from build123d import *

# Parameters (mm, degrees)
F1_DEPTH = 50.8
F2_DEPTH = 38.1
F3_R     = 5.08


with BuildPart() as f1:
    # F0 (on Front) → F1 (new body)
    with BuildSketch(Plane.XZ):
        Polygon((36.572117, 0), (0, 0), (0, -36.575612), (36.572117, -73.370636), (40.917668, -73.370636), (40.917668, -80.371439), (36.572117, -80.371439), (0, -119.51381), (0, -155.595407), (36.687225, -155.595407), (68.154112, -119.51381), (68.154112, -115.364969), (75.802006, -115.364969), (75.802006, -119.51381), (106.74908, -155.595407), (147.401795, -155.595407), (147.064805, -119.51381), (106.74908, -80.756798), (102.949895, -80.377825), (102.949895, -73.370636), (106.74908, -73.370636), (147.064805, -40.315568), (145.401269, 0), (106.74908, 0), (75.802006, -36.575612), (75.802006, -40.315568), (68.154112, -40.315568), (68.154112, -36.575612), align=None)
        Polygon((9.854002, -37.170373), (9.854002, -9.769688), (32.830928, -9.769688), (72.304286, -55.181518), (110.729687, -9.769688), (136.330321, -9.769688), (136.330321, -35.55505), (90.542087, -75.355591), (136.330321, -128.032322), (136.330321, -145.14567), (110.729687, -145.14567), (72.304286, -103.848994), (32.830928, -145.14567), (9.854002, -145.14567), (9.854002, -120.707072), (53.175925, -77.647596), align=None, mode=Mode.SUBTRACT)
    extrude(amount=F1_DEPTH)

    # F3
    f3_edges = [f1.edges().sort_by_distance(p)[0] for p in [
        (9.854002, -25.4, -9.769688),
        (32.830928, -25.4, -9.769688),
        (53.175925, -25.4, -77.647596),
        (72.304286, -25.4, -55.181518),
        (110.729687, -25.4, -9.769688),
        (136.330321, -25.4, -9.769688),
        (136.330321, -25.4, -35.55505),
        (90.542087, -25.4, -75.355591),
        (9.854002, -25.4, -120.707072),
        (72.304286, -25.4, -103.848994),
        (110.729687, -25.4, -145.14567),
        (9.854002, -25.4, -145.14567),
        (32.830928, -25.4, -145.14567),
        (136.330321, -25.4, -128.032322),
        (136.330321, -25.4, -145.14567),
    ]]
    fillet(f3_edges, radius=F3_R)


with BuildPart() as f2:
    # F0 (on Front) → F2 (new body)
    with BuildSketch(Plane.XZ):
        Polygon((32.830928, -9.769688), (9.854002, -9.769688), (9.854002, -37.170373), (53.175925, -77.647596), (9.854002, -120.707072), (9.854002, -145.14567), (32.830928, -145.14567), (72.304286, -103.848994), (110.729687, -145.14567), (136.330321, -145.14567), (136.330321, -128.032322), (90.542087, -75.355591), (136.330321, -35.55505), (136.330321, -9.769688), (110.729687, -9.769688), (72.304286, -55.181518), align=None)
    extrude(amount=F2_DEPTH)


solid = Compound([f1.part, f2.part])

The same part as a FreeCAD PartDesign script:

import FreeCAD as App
import Part
import Sketcher
Q = App.Units.Quantity


def edges_at(feature, points):
    """Names of the edges that pass closest to the given points."""
    edges = feature.Shape.Edges
    near = lambda p: min(range(len(edges)), key=lambda i: edges[i].distToShape(Part.Vertex(*p))[0])
    return sorted({f"Edge{near(p) + 1}" for p in points})

doc = App.newDocument("Part")
body = doc.addObject("PartDesign::Body", "Body")

# Sketch on XZ plane
sketch1 = body.newObject("Sketcher::SketchObject", "Sketch")
sketch1.AttachmentSupport = (doc.getObject("XZ_Plane"), [""])
sketch1.MapMode = "FlatFace"
sketch1.addGeometry(Part.LineSegment(App.Vector(36.6, 0, 0), App.Vector(0, 0, 0)), False)
sketch1.addGeometry(Part.LineSegment(App.Vector(0, 0, 0), App.Vector(0, -36.6, 0)), False)
sketch1.addGeometry(Part.LineSegment(App.Vector(0, -36.6, 0), App.Vector(36.6, -73.4, 0)), False)
sketch1.addGeometry(Part.LineSegment(App.Vector(36.6, -73.4, 0), App.Vector(40.9, -73.4, 0)), False)
sketch1.addGeometry(Part.LineSegment(App.Vector(40.9, -73.4, 0), App.Vector(40.9, -80.4, 0)), False)
sketch1.addGeometry(Part.LineSegment(App.Vector(40.9, -80.4, 0), App.Vector(36.6, -80.4, 0)), False)
sketch1.addGeometry(Part.LineSegment(App.Vector(36.6, -80.4, 0), App.Vector(0, -119.5, 0)), False)
sketch1.addGeometry(Part.LineSegment(App.Vector(0, -119.5, 0), App.Vector(0, -155.6, 0)), False)
sketch1.addGeometry(Part.LineSegment(App.Vector(0, -155.6, 0), App.Vector(36.7, -155.6, 0)), False)
sketch1.addGeometry(Part.LineSegment(App.Vector(36.7, -155.6, 0), App.Vector(68.2, -119.5, 0)), False)
sketch1.addGeometry(Part.LineSegment(App.Vector(68.2, -119.5, 0), App.Vector(68.2, -115.4, 0)), False)
sketch1.addGeometry(Part.LineSegment(App.Vector(68.2, -115.4, 0), App.Vector(75.8, -115.4, 0)), False)
sketch1.addGeometry(Part.LineSegment(App.Vector(75.8, -115.4, 0), App.Vector(75.8, -119.5, 0)), False)
sketch1.addGeometry(Part.LineSegment(App.Vector(75.8, -119.5, 0), App.Vector(106.7, -155.6, 0)), False)
sketch1.addGeometry(Part.LineSegment(App.Vector(106.7, -155.6, 0), App.Vector(147.4, -155.6, 0)), False)
sketch1.addGeometry(Part.LineSegment(App.Vector(147.4, -155.6, 0), App.Vector(147.1, -119.5, 0)), False)
sketch1.addGeometry(Part.LineSegment(App.Vector(147.1, -119.5, 0), App.Vector(106.7, -80.8, 0)), False)
sketch1.addGeometry(Part.LineSegment(App.Vector(106.7, -80.8, 0), App.Vector(102.9, -80.4, 0)), False)
sketch1.addGeometry(Part.LineSegment(App.Vector(102.9, -80.4, 0), App.Vector(102.9, -73.4, 0)), False)
sketch1.addGeometry(Part.LineSegment(App.Vector(102.9, -73.4, 0), App.Vector(106.7, -73.4, 0)), False)
sketch1.addGeometry(Part.LineSegment(App.Vector(106.7, -73.4, 0), App.Vector(147.1, -40.3, 0)), False)
sketch1.addGeometry(Part.LineSegment(App.Vector(147.1, -40.3, 0), App.Vector(145.4, 0, 0)), False)
sketch1.addGeometry(Part.LineSegment(App.Vector(145.4, 0, 0), App.Vector(106.7, 0, 0)), False)
sketch1.addGeometry(Part.LineSegment(App.Vector(106.7, 0, 0), App.Vector(75.8, -36.6, 0)), False)
sketch1.addGeometry(Part.LineSegment(App.Vector(75.8, -36.6, 0), App.Vector(75.8, -40.3, 0)), False)
sketch1.addGeometry(Part.LineSegment(App.Vector(75.8, -40.3, 0), App.Vector(68.2, -40.3, 0)), False)
sketch1.addGeometry(Part.LineSegment(App.Vector(68.2, -40.3, 0), App.Vector(68.2, -36.6, 0)), False)
sketch1.addGeometry(Part.LineSegment(App.Vector(68.2, -36.6, 0), App.Vector(36.6, 0, 0)), False)
sketch1.addGeometry(Part.LineSegment(App.Vector(53.2, -77.6, 0), App.Vector(9.9, -37.2, 0)), False)
sketch1.addGeometry(Part.LineSegment(App.Vector(9.9, -37.2, 0), App.Vector(9.9, -9.8, 0)), False)
sketch1.addGeometry(Part.LineSegment(App.Vector(9.9, -9.8, 0), App.Vector(32.8, -9.8, 0)), False)
sketch1.addGeometry(Part.LineSegment(App.Vector(32.8, -9.8, 0), App.Vector(72.3, -55.2, 0)), False)
sketch1.addGeometry(Part.LineSegment(App.Vector(72.3, -55.2, 0), App.Vector(110.7, -9.8, 0)), False)
sketch1.addGeometry(Part.LineSegment(App.Vector(110.7, -9.8, 0), App.Vector(136.3, -9.8, 0)), False)
sketch1.addGeometry(Part.LineSegment(App.Vector(136.3, -9.8, 0), App.Vector(136.3, -35.6, 0)), False)
sketch1.addGeometry(Part.LineSegment(App.Vector(136.3, -35.6, 0), App.Vector(90.5, -75.4, 0)), False)
sketch1.addGeometry(Part.LineSegment(App.Vector(90.5, -75.4, 0), App.Vector(136.3, -128, 0)), False)
sketch1.addGeometry(Part.LineSegment(App.Vector(136.3, -128, 0), App.Vector(136.3, -145.1, 0)), False)
sketch1.addGeometry(Part.LineSegment(App.Vector(136.3, -145.1, 0), App.Vector(110.7, -145.1, 0)), False)
sketch1.addGeometry(Part.LineSegment(App.Vector(110.7, -145.1, 0), App.Vector(72.3, -103.8, 0)), False)
sketch1.addGeometry(Part.LineSegment(App.Vector(72.3, -103.8, 0), App.Vector(32.8, -145.1, 0)), False)
sketch1.addGeometry(Part.LineSegment(App.Vector(32.8, -145.1, 0), App.Vector(9.9, -145.1, 0)), False)
sketch1.addGeometry(Part.LineSegment(App.Vector(9.9, -145.1, 0), App.Vector(9.9, -120.7, 0)), False)
sketch1.addGeometry(Part.LineSegment(App.Vector(9.9, -120.7, 0), App.Vector(53.2, -77.6, 0)), False)
sketch1.addConstraint(Sketcher.Constraint("Coincident", 0, 2, 1, 1))
sketch1.addConstraint(Sketcher.Constraint("Coincident", 1, 2, 2, 1))
sketch1.addConstraint(Sketcher.Constraint("Coincident", 2, 2, 3, 1))
sketch1.addConstraint(Sketcher.Constraint("Coincident", 3, 2, 4, 1))
sketch1.addConstraint(Sketcher.Constraint("Coincident", 4, 2, 5, 1))
sketch1.addConstraint(Sketcher.Constraint("Coincident", 5, 2, 6, 1))
sketch1.addConstraint(Sketcher.Constraint("Coincident", 6, 2, 7, 1))
sketch1.addConstraint(Sketcher.Constraint("Coincident", 7, 2, 8, 1))
sketch1.addConstraint(Sketcher.Constraint("Coincident", 8, 2, 9, 1))
sketch1.addConstraint(Sketcher.Constraint("Coincident", 9, 2, 10, 1))
sketch1.addConstraint(Sketcher.Constraint("Coincident", 10, 2, 11, 1))
sketch1.addConstraint(Sketcher.Constraint("Coincident", 11, 2, 12, 1))
sketch1.addConstraint(Sketcher.Constraint("Coincident", 12, 2, 13, 1))
sketch1.addConstraint(Sketcher.Constraint("Coincident", 13, 2, 14, 1))
sketch1.addConstraint(Sketcher.Constraint("Coincident", 14, 2, 15, 1))
sketch1.addConstraint(Sketcher.Constraint("Coincident", 15, 2, 16, 1))
sketch1.addConstraint(Sketcher.Constraint("Coincident", 16, 2, 17, 1))
sketch1.addConstraint(Sketcher.Constraint("Coincident", 17, 2, 18, 1))
sketch1.addConstraint(Sketcher.Constraint("Coincident", 18, 2, 19, 1))
sketch1.addConstraint(Sketcher.Constraint("Coincident", 19, 2, 20, 1))
sketch1.addConstraint(Sketcher.Constraint("Coincident", 20, 2, 21, 1))
sketch1.addConstraint(Sketcher.Constraint("Coincident", 21, 2, 22, 1))
sketch1.addConstraint(Sketcher.Constraint("Coincident", 22, 2, 23, 1))
sketch1.addConstraint(Sketcher.Constraint("Coincident", 23, 2, 24, 1))
sketch1.addConstraint(Sketcher.Constraint("Coincident", 24, 2, 25, 1))
sketch1.addConstraint(Sketcher.Constraint("Coincident", 25, 2, 26, 1))
sketch1.addConstraint(Sketcher.Constraint("Coincident", 26, 2, 27, 1))
sketch1.addConstraint(Sketcher.Constraint("Coincident", 27, 2, 0, 1))
sketch1.addConstraint(Sketcher.Constraint("Coincident", 28, 2, 29, 1))
sketch1.addConstraint(Sketcher.Constraint("Coincident", 29, 2, 30, 1))
sketch1.addConstraint(Sketcher.Constraint("Coincident", 30, 2, 31, 1))
sketch1.addConstraint(Sketcher.Constraint("Coincident", 31, 2, 32, 1))
sketch1.addConstraint(Sketcher.Constraint("Coincident", 32, 2, 33, 1))
sketch1.addConstraint(Sketcher.Constraint("Coincident", 33, 2, 34, 1))
sketch1.addConstraint(Sketcher.Constraint("Coincident", 34, 2, 35, 1))
sketch1.addConstraint(Sketcher.Constraint("Coincident", 35, 2, 36, 1))
sketch1.addConstraint(Sketcher.Constraint("Coincident", 36, 2, 37, 1))
sketch1.addConstraint(Sketcher.Constraint("Coincident", 37, 2, 38, 1))
sketch1.addConstraint(Sketcher.Constraint("Coincident", 38, 2, 39, 1))
sketch1.addConstraint(Sketcher.Constraint("Coincident", 39, 2, 40, 1))
sketch1.addConstraint(Sketcher.Constraint("Coincident", 40, 2, 41, 1))
sketch1.addConstraint(Sketcher.Constraint("Coincident", 41, 2, 42, 1))
sketch1.addConstraint(Sketcher.Constraint("Coincident", 42, 2, 43, 1))
sketch1.addConstraint(Sketcher.Constraint("Coincident", 43, 2, 28, 1))
sketch1.addConstraint(Sketcher.Constraint("Horizontal", 0))
sketch1.addConstraint(Sketcher.Constraint("Vertical", 1))
sketch1.addConstraint(Sketcher.Constraint("Horizontal", 3))
sketch1.addConstraint(Sketcher.Constraint("Vertical", 4))
sketch1.addConstraint(Sketcher.Constraint("Horizontal", 5))
sketch1.addConstraint(Sketcher.Constraint("Vertical", 7))
sketch1.addConstraint(Sketcher.Constraint("Horizontal", 8))
sketch1.addConstraint(Sketcher.Constraint("Vertical", 10))
sketch1.addConstraint(Sketcher.Constraint("Horizontal", 11))
sketch1.addConstraint(Sketcher.Constraint("Vertical", 12))
sketch1.addConstraint(Sketcher.Constraint("Horizontal", 14))
sketch1.addConstraint(Sketcher.Constraint("Vertical", 18))
sketch1.addConstraint(Sketcher.Constraint("Horizontal", 19))
sketch1.addConstraint(Sketcher.Constraint("Horizontal", 22))
sketch1.addConstraint(Sketcher.Constraint("Vertical", 24))
sketch1.addConstraint(Sketcher.Constraint("Horizontal", 25))
sketch1.addConstraint(Sketcher.Constraint("Vertical", 26))
sketch1.addConstraint(Sketcher.Constraint("Vertical", 29))
sketch1.addConstraint(Sketcher.Constraint("Horizontal", 30))
sketch1.addConstraint(Sketcher.Constraint("Horizontal", 33))
sketch1.addConstraint(Sketcher.Constraint("Vertical", 34))
sketch1.addConstraint(Sketcher.Constraint("Vertical", 37))
sketch1.addConstraint(Sketcher.Constraint("Horizontal", 38))
sketch1.addConstraint(Sketcher.Constraint("Horizontal", 41))
sketch1.addConstraint(Sketcher.Constraint("Vertical", 42))
sketch1.addConstraint(Sketcher.Constraint("Coincident", 0, 2, -1, 1))
sketch1.addConstraint(Sketcher.Constraint("PointOnObject", 6, 2, -2))
sketch1.addConstraint(Sketcher.Constraint("PointOnObject", 21, 2, -1))
sketch1.addConstraint(Sketcher.Constraint("Perpendicular", 6, 28))
sketch1.addConstraint(Sketcher.Constraint("Perpendicular", 31, 35))
sketch1.addConstraint(Sketcher.Constraint("Perpendicular", 35, 36))
sketch1.addConstraint(Sketcher.Constraint("Perpendicular", 2, 43))
sketch1.addConstraint(Sketcher.Constraint("Horizontal", 6, 2, 9, 2))
sketch1.addConstraint(Sketcher.Constraint("Horizontal", 9, 2, 12, 2))
sketch1.addConstraint(Sketcher.Constraint("Horizontal", 8, 2, 13, 2))
sketch1.addConstraint(Sketcher.Constraint("Horizontal", 12, 2, 15, 2))
sketch1.addConstraint(Sketcher.Constraint("Horizontal", 3, 2, 18, 2))
sketch1.addConstraint(Sketcher.Constraint("Horizontal", 1, 2, 23, 2))
sketch1.addConstraint(Sketcher.Constraint("Horizontal", 20, 2, 24, 2))
sketch1.addConstraint(Sketcher.Constraint("Horizontal", 23, 2, 26, 2))
sketch1.addConstraint(Sketcher.Constraint("Horizontal", 30, 2, 32, 2))
sketch1.addConstraint(Sketcher.Constraint("Horizontal", 38, 2, 40, 2))
sketch1.addConstraint(Sketcher.Constraint("Vertical", 2, 2, 5, 2))
sketch1.addConstraint(Sketcher.Constraint("Vertical", 13, 2, 16, 2))
sketch1.addConstraint(Sketcher.Constraint("Vertical", 16, 2, 19, 2))
sketch1.addConstraint(Sketcher.Constraint("Vertical", 15, 2, 20, 2))
sketch1.addConstraint(Sketcher.Constraint("Vertical", 19, 2, 22, 2))
sketch1.addConstraint(Sketcher.Constraint("Vertical", 12, 2, 23, 2))
sketch1.addConstraint(Sketcher.Constraint("Vertical", 10, 2, 25, 2))
sketch1.addConstraint(Sketcher.Constraint("Vertical", 5, 2, 27, 2))
sketch1.addConstraint(Sketcher.Constraint("Vertical", 34, 2, 36, 2))
sketch1.addConstraint(Sketcher.Constraint("Vertical", 32, 2, 38, 2))
sketch1.addConstraint(Sketcher.Constraint("Vertical", 31, 2, 39, 2))
sketch1.addConstraint(Sketcher.Constraint("Vertical", 30, 2, 40, 2))
sketch1.addConstraint(Sketcher.Constraint("Vertical", 29, 2, 41, 2))
sketch1.addConstraint(Sketcher.Constraint("DistanceX", 3, 1, 3, 2, 4.345551))
sketch1.addConstraint(Sketcher.Constraint("DistanceX", 22, 2, 22, 1, 38.652189))
sketch1.addConstraint(Sketcher.Constraint("DistanceY", 10, 1, 10, 2, 4.148841))
sketch1.addConstraint(Sketcher.Constraint("DistanceY", 18, 1, 18, 2, 7.007189))
sketch1.addConstraint(Sketcher.Constraint("DistanceY", 34, 2, 34, 1, 25.785362))
sketch1.addConstraint(Sketcher.Constraint("DistanceY", 37, 2, 37, 1, 17.113348))
sketch1.addConstraint(Sketcher.Constraint("DistanceY", 16, 2, -1, 1, 80.756798))
sketch1.addConstraint(Sketcher.Constraint("DistanceY", 6, 2, 1, 2, 82.938198))
sketch1.addConstraint(Sketcher.Constraint("DistanceX", 12, 2, 15, 2, 71.262799))
sketch1.addConstraint(Sketcher.Constraint("DistanceX", 31, 2, 35, 2, 18.237801))
sketch1.addConstraint(Sketcher.Constraint("DistanceY", 40, 2, 10, 2, 29.780701))
sketch1.addConstraint(Sketcher.Constraint("Distance", 13, 47.535282))
sketch1.addConstraint(Sketcher.Constraint("Distance", 15, 36.083171))
sketch1.addConstraint(Sketcher.Constraint("Distance", 16, 55.923731))
sketch1.addConstraint(Sketcher.Constraint("Distance", 17, 3.81804))
sketch1.addConstraint(Sketcher.Constraint("Distance", 39, 56.408571))
sketch1.addConstraint(Sketcher.Constraint("Distance", 40, 57.127589))
sketch1.addConstraint(Sketcher.Constraint("DistanceX", 0, 2, 0, 1, 36.572117))
sketch1.addConstraint(Sketcher.Constraint("DistanceX", 8, 1, 8, 2, 36.687225))
sketch1.addConstraint(Sketcher.Constraint("DistanceX", 11, 1, 11, 2, 7.647894))
sketch1.addConstraint(Sketcher.Constraint("DistanceX", 14, 1, 14, 2, 40.652715))
sketch1.addConstraint(Sketcher.Constraint("DistanceX", 19, 1, 19, 2, 3.799185))
sketch1.addConstraint(Sketcher.Constraint("DistanceX", 30, 1, 30, 2, 22.976926))
sketch1.addConstraint(Sketcher.Constraint("DistanceX", 33, 1, 33, 2, 25.600634))
sketch1.addConstraint(Sketcher.Constraint("DistanceY", 4, 2, 4, 1, 7.000803))
sketch1.addConstraint(Sketcher.Constraint("DistanceY", 24, 2, 24, 1, 3.739956))
sketch1.addConstraint(Sketcher.Constraint("DistanceY", 29, 1, 29, 2, 27.400685))
sketch1.addConstraint(Sketcher.Constraint("DistanceY", 42, 1, 42, 2, 24.438598))
sketch1.addConstraint(Sketcher.Constraint("DistanceX", -1, 1, 9, 2, 68.154112))
sketch1.addConstraint(Sketcher.Constraint("DistanceX", -1, 1, 33, 2, 136.330321))
sketch1.addConstraint(Sketcher.Constraint("DistanceY", 34, 2, -1, 1, 35.55505))
sketch1.addConstraint(Sketcher.Constraint("DistanceY", 35, 2, -1, 1, 75.355591))
pad1 = body.newObject("PartDesign::Pad", "Pad")
pad1.Profile = sketch1
pad1.Length = Q("2 in")
doc.recompute()

fillet = body.newObject("PartDesign::Fillet", "Fillet")
fillet.Base = (pad1, edges_at(pad1, [
    (9.854, -25.4, -9.77),
    (32.831, -25.4, -9.77),
    (53.176, -25.4, -77.648),
    (72.304, -25.4, -55.182),
    (110.73, -25.4, -9.77),
    (136.33, -25.4, -9.77),
    (136.33, -25.4, -35.555),
    (90.542, -25.4, -75.356),
    (9.854, -25.4, -120.707),
    (72.304, -25.4, -103.849),
    (110.73, -25.4, -145.146),
    (9.854, -25.4, -145.146),
    (32.831, -25.4, -145.146),
    (136.33, -25.4, -128.032),
    (136.33, -25.4, -145.146),
]))
fillet.Radius = Q("0.2 in")
body2 = doc.addObject("PartDesign::Body", "Body001")

# Sketch on XZ plane
sketch2 = body2.newObject("Sketcher::SketchObject", "Sketch001")
sketch2.AttachmentSupport = (doc.getObject("XZ_Plane001"), [""])
sketch2.MapMode = "FlatFace"
sketch2.addGeometry(Part.LineSegment(App.Vector(33, -10, 0), App.Vector(10, -10, 0)), False)
sketch2.addGeometry(Part.LineSegment(App.Vector(10, -10, 0), App.Vector(10, -37, 0)), False)
sketch2.addGeometry(Part.LineSegment(App.Vector(10, -37, 0), App.Vector(53, -78, 0)), False)
sketch2.addGeometry(Part.LineSegment(App.Vector(53, -78, 0), App.Vector(10, -121, 0)), False)
sketch2.addGeometry(Part.LineSegment(App.Vector(10, -121, 0), App.Vector(10, -145, 0)), False)
sketch2.addGeometry(Part.LineSegment(App.Vector(10, -145, 0), App.Vector(33, -145, 0)), False)
sketch2.addGeometry(Part.LineSegment(App.Vector(33, -145, 0), App.Vector(72, -104, 0)), False)
sketch2.addGeometry(Part.LineSegment(App.Vector(72, -104, 0), App.Vector(111, -145, 0)), False)
sketch2.addGeometry(Part.LineSegment(App.Vector(111, -145, 0), App.Vector(136, -145, 0)), False)
sketch2.addGeometry(Part.LineSegment(App.Vector(136, -145, 0), App.Vector(136, -128, 0)), False)
sketch2.addGeometry(Part.LineSegment(App.Vector(136, -128, 0), App.Vector(91, -75, 0)), False)
sketch2.addGeometry(Part.LineSegment(App.Vector(91, -75, 0), App.Vector(136, -36, 0)), False)
sketch2.addGeometry(Part.LineSegment(App.Vector(136, -36, 0), App.Vector(136, -10, 0)), False)
sketch2.addGeometry(Part.LineSegment(App.Vector(136, -10, 0), App.Vector(111, -10, 0)), False)
sketch2.addGeometry(Part.LineSegment(App.Vector(111, -10, 0), App.Vector(72, -55, 0)), False)
sketch2.addGeometry(Part.LineSegment(App.Vector(72, -55, 0), App.Vector(33, -10, 0)), False)
sketch2.addConstraint(Sketcher.Constraint("Coincident", 0, 2, 1, 1))
sketch2.addConstraint(Sketcher.Constraint("Coincident", 1, 2, 2, 1))
sketch2.addConstraint(Sketcher.Constraint("Coincident", 2, 2, 3, 1))
sketch2.addConstraint(Sketcher.Constraint("Coincident", 3, 2, 4, 1))
sketch2.addConstraint(Sketcher.Constraint("Coincident", 4, 2, 5, 1))
sketch2.addConstraint(Sketcher.Constraint("Coincident", 5, 2, 6, 1))
sketch2.addConstraint(Sketcher.Constraint("Coincident", 6, 2, 7, 1))
sketch2.addConstraint(Sketcher.Constraint("Coincident", 7, 2, 8, 1))
sketch2.addConstraint(Sketcher.Constraint("Coincident", 8, 2, 9, 1))
sketch2.addConstraint(Sketcher.Constraint("Coincident", 9, 2, 10, 1))
sketch2.addConstraint(Sketcher.Constraint("Coincident", 10, 2, 11, 1))
sketch2.addConstraint(Sketcher.Constraint("Coincident", 11, 2, 12, 1))
sketch2.addConstraint(Sketcher.Constraint("Coincident", 12, 2, 13, 1))
sketch2.addConstraint(Sketcher.Constraint("Coincident", 13, 2, 14, 1))
sketch2.addConstraint(Sketcher.Constraint("Coincident", 14, 2, 15, 1))
sketch2.addConstraint(Sketcher.Constraint("Coincident", 15, 2, 0, 1))
sketch2.addConstraint(Sketcher.Constraint("Horizontal", 0))
sketch2.addConstraint(Sketcher.Constraint("Vertical", 1))
sketch2.addConstraint(Sketcher.Constraint("Vertical", 4))
sketch2.addConstraint(Sketcher.Constraint("Horizontal", 5))
sketch2.addConstraint(Sketcher.Constraint("Horizontal", 8))
sketch2.addConstraint(Sketcher.Constraint("Vertical", 9))
sketch2.addConstraint(Sketcher.Constraint("Vertical", 12))
sketch2.addConstraint(Sketcher.Constraint("Horizontal", 13))
sketch2.addConstraint(Sketcher.Constraint("Perpendicular", 10, 11))
sketch2.addConstraint(Sketcher.Constraint("Perpendicular", 11, 15))
sketch2.addConstraint(Sketcher.Constraint("Horizontal", 5, 2, 7, 2))
sketch2.addConstraint(Sketcher.Constraint("Horizontal", 0, 2, 12, 2))
sketch2.addConstraint(Sketcher.Constraint("Vertical", 1, 2, 3, 2))
sketch2.addConstraint(Sketcher.Constraint("Vertical", 9, 2, 11, 2))
sketch2.addConstraint(Sketcher.Constraint("Vertical", 7, 2, 13, 2))
sketch2.addConstraint(Sketcher.Constraint("Vertical", 6, 2, 14, 2))
sketch2.addConstraint(Sketcher.Constraint("Vertical", 5, 2, 15, 2))
sketch2.addConstraint(Sketcher.Constraint("DistanceY", 14, 2, 1, 2, Q("0.7091002 in")))
sketch2.addConstraint(Sketcher.Constraint("DistanceY", 9, 1, 9, 2, 17.113348))
sketch2.addConstraint(Sketcher.Constraint("DistanceY", 12, 1, 12, 2, 25.785362))
sketch2.addConstraint(Sketcher.Constraint("DistanceY", 3, 2, 1, 2, 83.536699))
sketch2.addConstraint(Sketcher.Constraint("DistanceY", 6, 2, 2, 2, 26.201398))
sketch2.addConstraint(Sketcher.Constraint("DistanceX", 6, 2, 7, 2, 38.425401))
sketch2.addConstraint(Sketcher.Constraint("DistanceX", 6, 2, 10, 2, 18.237801))
sketch2.addConstraint(Sketcher.Constraint("Distance", 6, 57.127589))
sketch2.addConstraint(Sketcher.Constraint("Distance", 7, 56.408571))
sketch2.addConstraint(Sketcher.Constraint("DistanceX", 0, 2, 0, 1, 22.976926))
sketch2.addConstraint(Sketcher.Constraint("DistanceX", 8, 1, 8, 2, 25.600634))
sketch2.addConstraint(Sketcher.Constraint("DistanceY", 1, 2, 1, 1, 27.400685))
sketch2.addConstraint(Sketcher.Constraint("DistanceY", 3, 2, -1, 1, 120.707072))
sketch2.addConstraint(Sketcher.Constraint("DistanceX", -1, 1, 8, 2, 136.330321))
sketch2.addConstraint(Sketcher.Constraint("DistanceX", 2, 2, 6, 2, 19.128361))
pad2 = body2.newObject("PartDesign::Pad", "Pad001")
pad2.Profile = sketch2
pad2.Length = Q("1.5 in")

doc.recompute()
